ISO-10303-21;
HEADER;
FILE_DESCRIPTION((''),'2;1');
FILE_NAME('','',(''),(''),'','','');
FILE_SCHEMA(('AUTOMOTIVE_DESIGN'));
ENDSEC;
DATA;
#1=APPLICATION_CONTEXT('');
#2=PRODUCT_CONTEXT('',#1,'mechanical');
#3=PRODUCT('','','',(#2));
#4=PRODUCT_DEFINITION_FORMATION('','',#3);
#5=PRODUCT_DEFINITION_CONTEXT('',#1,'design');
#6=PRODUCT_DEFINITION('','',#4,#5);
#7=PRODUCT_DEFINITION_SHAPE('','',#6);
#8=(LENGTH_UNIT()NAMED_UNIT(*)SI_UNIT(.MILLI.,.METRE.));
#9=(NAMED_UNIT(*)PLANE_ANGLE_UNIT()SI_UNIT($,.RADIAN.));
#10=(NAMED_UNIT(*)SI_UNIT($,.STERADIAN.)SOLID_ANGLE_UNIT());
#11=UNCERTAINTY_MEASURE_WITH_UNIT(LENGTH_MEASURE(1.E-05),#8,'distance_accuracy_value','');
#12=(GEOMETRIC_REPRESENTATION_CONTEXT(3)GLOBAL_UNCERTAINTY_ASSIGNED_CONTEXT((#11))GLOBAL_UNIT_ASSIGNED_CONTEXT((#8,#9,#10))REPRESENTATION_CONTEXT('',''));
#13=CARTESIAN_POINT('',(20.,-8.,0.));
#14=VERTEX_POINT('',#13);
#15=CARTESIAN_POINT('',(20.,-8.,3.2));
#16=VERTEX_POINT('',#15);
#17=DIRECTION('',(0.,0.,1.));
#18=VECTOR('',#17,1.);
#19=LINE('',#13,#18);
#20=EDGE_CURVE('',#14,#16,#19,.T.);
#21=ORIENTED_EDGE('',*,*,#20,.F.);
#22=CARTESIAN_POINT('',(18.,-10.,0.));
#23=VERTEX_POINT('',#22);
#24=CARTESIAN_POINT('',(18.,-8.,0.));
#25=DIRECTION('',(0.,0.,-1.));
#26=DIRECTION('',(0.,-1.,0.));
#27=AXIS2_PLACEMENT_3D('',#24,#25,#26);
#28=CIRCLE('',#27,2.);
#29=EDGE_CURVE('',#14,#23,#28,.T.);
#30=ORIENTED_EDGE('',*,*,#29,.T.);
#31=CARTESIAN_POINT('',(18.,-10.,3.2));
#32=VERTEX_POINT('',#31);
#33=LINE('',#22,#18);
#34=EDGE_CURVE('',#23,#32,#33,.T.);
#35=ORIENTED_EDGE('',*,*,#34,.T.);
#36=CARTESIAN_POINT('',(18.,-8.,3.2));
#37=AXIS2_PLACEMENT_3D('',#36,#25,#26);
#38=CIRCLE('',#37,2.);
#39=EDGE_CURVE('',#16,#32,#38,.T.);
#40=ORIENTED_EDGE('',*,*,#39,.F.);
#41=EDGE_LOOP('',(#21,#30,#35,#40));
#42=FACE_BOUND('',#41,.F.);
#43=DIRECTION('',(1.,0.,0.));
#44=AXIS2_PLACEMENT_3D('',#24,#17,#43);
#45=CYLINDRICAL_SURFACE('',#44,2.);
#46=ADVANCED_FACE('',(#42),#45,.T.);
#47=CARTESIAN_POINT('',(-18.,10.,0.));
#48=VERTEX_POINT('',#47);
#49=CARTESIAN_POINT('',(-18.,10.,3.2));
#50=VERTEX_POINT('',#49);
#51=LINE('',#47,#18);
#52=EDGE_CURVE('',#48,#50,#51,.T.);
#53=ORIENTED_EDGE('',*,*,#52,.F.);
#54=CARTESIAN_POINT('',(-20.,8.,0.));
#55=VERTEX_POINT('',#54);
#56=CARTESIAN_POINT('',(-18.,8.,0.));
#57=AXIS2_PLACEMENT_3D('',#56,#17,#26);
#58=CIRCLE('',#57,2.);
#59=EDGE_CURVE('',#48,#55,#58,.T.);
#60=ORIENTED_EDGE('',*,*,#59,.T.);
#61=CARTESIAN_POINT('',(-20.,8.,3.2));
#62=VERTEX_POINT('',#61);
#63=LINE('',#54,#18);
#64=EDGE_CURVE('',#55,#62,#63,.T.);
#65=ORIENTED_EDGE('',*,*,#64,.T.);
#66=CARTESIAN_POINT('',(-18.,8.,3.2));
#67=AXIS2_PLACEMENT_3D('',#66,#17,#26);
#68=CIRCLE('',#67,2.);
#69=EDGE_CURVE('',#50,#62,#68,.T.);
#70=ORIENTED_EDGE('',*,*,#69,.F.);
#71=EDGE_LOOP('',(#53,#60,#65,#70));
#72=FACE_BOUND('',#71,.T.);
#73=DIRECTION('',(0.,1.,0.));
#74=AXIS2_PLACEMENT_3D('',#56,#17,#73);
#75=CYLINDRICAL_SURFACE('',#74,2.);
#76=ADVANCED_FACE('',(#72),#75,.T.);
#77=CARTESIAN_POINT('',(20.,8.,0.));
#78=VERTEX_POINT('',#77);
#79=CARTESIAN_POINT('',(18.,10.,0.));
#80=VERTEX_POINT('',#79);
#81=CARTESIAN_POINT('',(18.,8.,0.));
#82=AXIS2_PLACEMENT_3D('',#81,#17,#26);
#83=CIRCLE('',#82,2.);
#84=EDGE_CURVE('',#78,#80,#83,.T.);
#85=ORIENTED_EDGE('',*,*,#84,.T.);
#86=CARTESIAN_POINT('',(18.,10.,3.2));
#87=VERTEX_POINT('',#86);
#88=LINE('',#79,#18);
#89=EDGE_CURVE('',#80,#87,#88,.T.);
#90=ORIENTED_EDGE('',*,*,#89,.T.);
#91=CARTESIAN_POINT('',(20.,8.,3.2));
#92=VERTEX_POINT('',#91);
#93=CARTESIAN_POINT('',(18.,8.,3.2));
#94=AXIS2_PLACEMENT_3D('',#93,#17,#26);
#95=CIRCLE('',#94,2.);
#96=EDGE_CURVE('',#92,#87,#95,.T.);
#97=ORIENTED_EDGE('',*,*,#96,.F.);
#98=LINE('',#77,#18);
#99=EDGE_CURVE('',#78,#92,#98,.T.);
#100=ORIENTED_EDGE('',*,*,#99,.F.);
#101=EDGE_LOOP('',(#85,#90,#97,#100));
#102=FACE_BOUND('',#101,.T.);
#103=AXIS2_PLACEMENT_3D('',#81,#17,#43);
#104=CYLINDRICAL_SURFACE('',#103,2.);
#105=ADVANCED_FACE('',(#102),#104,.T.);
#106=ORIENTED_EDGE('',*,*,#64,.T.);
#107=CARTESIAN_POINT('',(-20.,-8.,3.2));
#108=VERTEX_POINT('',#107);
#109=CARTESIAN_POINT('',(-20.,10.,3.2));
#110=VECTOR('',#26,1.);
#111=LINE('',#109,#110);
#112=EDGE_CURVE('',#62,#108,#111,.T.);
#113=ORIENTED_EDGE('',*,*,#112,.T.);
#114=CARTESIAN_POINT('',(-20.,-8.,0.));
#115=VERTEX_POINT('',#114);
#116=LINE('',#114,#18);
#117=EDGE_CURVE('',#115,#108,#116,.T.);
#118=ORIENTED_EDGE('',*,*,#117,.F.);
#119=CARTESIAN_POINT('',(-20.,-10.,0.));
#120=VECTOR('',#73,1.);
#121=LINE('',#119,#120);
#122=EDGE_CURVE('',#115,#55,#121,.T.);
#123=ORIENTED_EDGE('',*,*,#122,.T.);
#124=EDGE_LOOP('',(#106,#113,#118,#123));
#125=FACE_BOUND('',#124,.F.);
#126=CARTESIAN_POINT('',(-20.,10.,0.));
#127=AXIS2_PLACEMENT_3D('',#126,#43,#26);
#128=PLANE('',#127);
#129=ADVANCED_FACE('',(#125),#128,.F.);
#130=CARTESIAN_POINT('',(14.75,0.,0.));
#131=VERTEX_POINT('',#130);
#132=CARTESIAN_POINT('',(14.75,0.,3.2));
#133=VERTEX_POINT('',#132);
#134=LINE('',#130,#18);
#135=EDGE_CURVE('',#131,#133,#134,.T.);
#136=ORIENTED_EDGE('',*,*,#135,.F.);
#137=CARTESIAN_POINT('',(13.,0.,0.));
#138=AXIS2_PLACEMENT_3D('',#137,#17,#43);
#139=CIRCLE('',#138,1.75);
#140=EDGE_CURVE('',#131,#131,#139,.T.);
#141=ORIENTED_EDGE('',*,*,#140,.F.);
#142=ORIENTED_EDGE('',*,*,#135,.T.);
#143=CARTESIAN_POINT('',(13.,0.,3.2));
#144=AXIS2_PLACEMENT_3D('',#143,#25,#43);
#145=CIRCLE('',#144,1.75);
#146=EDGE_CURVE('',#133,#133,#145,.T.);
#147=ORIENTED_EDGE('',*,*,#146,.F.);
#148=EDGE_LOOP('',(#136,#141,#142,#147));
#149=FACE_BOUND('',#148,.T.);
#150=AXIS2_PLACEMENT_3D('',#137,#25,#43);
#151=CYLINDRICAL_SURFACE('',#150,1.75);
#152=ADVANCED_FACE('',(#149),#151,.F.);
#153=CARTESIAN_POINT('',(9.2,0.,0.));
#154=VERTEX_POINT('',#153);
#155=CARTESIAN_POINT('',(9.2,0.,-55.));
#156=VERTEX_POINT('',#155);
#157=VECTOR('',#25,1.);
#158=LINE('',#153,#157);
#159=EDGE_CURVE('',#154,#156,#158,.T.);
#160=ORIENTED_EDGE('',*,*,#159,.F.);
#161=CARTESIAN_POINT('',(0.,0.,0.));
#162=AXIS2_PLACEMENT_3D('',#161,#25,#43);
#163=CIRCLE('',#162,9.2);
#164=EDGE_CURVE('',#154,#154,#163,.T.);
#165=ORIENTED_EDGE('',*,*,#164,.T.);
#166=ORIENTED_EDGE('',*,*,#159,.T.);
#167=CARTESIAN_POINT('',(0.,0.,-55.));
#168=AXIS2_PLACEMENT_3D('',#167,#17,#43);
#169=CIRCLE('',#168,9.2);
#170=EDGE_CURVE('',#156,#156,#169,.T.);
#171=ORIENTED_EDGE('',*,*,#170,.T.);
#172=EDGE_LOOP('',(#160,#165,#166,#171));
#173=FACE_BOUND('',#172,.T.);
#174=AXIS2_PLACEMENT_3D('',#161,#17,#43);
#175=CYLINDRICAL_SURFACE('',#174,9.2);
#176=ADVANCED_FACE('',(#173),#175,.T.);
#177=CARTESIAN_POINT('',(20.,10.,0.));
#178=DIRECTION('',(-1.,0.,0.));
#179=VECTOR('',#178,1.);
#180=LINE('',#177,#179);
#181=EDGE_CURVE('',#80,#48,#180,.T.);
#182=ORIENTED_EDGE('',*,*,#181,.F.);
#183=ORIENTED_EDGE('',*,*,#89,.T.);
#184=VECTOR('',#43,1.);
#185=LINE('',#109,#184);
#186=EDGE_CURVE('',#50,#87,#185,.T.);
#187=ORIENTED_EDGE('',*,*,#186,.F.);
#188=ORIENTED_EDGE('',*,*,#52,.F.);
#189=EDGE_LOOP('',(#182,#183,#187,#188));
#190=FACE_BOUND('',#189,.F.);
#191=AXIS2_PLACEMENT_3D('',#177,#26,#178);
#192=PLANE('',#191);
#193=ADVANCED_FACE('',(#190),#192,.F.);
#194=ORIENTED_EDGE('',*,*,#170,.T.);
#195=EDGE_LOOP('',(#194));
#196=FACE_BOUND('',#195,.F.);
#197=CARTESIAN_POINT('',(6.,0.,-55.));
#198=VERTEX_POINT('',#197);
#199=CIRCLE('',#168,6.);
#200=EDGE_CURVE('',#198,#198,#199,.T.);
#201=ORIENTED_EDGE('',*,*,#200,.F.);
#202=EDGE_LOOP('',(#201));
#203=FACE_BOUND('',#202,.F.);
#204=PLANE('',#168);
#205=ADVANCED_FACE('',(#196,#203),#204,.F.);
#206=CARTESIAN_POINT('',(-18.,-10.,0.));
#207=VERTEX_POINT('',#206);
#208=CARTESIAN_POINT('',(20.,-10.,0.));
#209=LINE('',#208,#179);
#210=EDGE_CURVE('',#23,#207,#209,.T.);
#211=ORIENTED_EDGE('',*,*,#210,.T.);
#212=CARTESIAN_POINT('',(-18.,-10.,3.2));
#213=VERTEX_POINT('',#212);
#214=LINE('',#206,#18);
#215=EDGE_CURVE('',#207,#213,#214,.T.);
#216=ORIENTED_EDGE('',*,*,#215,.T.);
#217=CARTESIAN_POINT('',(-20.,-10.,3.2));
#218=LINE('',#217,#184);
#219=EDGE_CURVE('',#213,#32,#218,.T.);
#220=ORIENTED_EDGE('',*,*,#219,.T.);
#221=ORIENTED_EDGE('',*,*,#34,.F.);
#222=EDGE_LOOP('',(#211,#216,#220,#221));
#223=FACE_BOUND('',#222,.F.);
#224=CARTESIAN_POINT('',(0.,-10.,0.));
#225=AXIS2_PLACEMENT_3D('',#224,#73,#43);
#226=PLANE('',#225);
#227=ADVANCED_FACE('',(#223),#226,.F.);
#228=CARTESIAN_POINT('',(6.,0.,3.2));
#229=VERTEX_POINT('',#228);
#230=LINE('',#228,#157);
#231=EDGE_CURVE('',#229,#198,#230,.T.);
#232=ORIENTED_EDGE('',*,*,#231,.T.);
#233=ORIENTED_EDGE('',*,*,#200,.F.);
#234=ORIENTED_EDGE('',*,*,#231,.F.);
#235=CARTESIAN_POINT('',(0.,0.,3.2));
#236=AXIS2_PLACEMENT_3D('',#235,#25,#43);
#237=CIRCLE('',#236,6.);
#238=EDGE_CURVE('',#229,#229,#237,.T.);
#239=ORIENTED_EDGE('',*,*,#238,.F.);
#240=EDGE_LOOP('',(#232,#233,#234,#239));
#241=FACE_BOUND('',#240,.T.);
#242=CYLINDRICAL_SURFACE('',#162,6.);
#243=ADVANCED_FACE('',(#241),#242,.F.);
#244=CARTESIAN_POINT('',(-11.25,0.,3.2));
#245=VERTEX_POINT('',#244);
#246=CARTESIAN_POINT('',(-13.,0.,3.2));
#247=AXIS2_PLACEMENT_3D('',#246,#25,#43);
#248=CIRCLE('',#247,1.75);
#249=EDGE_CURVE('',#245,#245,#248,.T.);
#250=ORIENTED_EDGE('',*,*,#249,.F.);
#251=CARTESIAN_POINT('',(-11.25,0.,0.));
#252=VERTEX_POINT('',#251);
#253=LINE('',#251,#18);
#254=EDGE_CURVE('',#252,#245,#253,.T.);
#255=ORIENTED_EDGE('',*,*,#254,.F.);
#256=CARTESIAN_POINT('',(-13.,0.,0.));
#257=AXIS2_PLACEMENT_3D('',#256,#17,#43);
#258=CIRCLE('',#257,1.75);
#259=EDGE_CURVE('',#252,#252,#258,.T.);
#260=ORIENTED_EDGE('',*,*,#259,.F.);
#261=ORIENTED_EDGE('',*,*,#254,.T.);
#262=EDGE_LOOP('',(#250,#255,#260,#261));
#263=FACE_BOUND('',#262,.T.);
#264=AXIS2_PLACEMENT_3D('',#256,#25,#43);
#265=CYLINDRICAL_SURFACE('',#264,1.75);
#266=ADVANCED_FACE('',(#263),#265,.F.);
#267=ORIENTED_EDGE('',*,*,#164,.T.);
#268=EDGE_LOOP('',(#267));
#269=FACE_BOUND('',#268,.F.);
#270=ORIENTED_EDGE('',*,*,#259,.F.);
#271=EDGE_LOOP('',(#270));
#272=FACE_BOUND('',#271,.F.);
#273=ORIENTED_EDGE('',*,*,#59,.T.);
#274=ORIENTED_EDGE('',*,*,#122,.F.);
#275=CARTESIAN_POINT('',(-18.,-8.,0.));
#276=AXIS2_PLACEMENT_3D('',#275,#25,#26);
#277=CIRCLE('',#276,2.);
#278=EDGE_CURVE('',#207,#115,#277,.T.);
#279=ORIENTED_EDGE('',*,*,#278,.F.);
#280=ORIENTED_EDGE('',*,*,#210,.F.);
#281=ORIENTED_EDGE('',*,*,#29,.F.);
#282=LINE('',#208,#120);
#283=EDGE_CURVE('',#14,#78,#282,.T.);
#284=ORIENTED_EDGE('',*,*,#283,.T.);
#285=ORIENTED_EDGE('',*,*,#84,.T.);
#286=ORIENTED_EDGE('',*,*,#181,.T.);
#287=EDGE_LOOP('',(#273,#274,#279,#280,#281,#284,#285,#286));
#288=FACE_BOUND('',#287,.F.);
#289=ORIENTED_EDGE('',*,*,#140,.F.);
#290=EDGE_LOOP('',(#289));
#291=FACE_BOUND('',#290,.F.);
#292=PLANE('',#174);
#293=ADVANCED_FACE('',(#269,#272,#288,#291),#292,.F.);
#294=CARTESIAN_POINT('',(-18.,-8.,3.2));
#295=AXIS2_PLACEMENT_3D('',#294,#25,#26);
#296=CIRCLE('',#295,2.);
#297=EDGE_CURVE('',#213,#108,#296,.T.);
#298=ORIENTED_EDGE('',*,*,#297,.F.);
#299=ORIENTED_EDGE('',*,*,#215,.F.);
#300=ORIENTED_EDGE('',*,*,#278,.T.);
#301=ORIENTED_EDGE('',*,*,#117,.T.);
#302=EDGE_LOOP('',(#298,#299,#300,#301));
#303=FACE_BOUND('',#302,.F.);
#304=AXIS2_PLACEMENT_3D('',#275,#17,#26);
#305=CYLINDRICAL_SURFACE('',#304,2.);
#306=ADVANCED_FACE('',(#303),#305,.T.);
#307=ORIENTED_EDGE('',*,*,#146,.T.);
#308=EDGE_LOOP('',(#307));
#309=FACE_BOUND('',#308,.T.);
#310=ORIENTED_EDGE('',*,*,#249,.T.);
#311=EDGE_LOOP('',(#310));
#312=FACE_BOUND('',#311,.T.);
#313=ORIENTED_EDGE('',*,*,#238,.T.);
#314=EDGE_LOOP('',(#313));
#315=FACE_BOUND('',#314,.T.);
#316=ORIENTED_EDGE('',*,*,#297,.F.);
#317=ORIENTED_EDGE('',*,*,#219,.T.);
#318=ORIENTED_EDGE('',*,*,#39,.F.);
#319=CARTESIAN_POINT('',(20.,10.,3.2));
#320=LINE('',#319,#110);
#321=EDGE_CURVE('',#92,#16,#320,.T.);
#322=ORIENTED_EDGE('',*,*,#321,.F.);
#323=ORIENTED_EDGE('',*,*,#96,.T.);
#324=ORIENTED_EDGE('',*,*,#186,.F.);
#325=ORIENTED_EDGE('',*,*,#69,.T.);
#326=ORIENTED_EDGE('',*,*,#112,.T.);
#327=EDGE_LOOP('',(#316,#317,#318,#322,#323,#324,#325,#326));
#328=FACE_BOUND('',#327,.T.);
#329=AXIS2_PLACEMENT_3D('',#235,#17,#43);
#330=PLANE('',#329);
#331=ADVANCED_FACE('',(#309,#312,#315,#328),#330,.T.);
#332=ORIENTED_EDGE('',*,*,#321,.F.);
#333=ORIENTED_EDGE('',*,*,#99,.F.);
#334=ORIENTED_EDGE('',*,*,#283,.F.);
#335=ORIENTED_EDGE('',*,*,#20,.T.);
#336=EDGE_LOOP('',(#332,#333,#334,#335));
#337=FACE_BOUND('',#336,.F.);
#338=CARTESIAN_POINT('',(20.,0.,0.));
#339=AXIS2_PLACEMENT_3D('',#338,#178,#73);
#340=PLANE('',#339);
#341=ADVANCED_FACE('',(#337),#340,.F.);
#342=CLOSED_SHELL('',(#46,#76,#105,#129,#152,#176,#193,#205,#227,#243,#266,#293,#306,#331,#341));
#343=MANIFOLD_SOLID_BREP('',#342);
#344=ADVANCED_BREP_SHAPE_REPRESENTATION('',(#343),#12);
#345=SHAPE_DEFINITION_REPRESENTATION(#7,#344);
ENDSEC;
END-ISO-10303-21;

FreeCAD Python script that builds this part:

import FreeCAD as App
import Part
import Sketcher
Q = App.Units.Quantity


def edges_at(feature, points):
    """Names of the edges that pass closest to the given points."""
    edges = feature.Shape.Edges
    near = lambda p: min(range(len(edges)), key=lambda i: edges[i].distToShape(Part.Vertex(*p))[0])
    return sorted({f"Edge{near(p) + 1}" for p in points})

doc = App.newDocument("Part")
body = doc.addObject("PartDesign::Body", "Body")

# Sketch on XY plane
sketch1 = doc.addObject("Sketcher::SketchObject", "Sketch")
body.addObject(sketch1)
sketch1.AttachmentSupport = (doc.XY_Plane, [""])
sketch1.MapMode = "FlatFace"
sketch1.addGeometry([
    Part.LineSegment(App.Vector(20, 10, 0), App.Vector(-20, 10, 0)),  # 0
    Part.LineSegment(App.Vector(-20, 10, 0), App.Vector(-20, -10, 0)),  # 1
    Part.LineSegment(App.Vector(-20, -10, 0), App.Vector(20, -10, 0)),  # 2
    Part.LineSegment(App.Vector(20, -10, 0), App.Vector(20, 10, 0)),  # 3
    Part.Circle(App.Vector(13, 0, 0), App.Vector(0, 0, 1), 1.8),  # 4
    Part.Circle(App.Vector(0, 0, 0), App.Vector(0, 0, 1), 6),  # 5
    Part.Circle(App.Vector(-13, 0, 0), App.Vector(0, 0, 1), 1.8),  # 6
], False)
sketch1.addConstraint([
    Sketcher.Constraint("Coincident", 0, 2, 1, 1),
    Sketcher.Constraint("Coincident", 1, 2, 2, 1),
    Sketcher.Constraint("Coincident", 2, 2, 3, 1),
    Sketcher.Constraint("Coincident", 3, 2, 0, 1),
    Sketcher.Constraint("Horizontal", 0),
    Sketcher.Constraint("Vertical", 1),
    Sketcher.Constraint("Horizontal", 2),
    Sketcher.Constraint("Vertical", 3),
    Sketcher.Constraint("Coincident", 5, 3, -1, 1),
    Sketcher.Constraint("Equal", 4, 6),
    Sketcher.Constraint("Symmetric", 4, 3, 6, 3, -1, 1),
    Sketcher.Constraint("Symmetric", 0, 2, 2, 2, -1, 1),
    Sketcher.Constraint("PointOnObject", 4, 3, -1),
    Sketcher.Constraint("Diameter", 5, Q("12 mm")),
    Sketcher.Constraint("Diameter", 4, Q("3.5 mm")),
    Sketcher.Constraint("DistanceX", 0, 2, 0, 1, Q("40 mm")),
    Sketcher.Constraint("DistanceY", 1, 2, 1, 1, Q("20 mm")),
    Sketcher.Constraint("DistanceX", 0, 2, 6, 3, Q("7 mm")),
])
pad1 = doc.addObject("PartDesign::Pad", "Pad")
body.addObject(pad1)
pad1.Profile = sketch1
pad1.Length = 3.2

# Sketch on XY plane
sketch2 = doc.addObject("Sketcher::SketchObject", "Sketch001")
body.addObject(sketch2)
sketch2.AttachmentSupport = (doc.XY_Plane, [""])
sketch2.MapMode = "FlatFace"
sketch2.addGeometry([
    Part.Circle(App.Vector(0, 0, 0), App.Vector(0, 0, 1), 9),
    Part.Circle(App.Vector(0, 0, 0), App.Vector(0, 0, 1), 6),
], False)
sketch2.addConstraint([
    Sketcher.Constraint("Coincident", 0, 3, -1, 1),
    Sketcher.Constraint("Coincident", 1, 3, -1, 1),
    Sketcher.Constraint("Diameter", 1, Q("12 mm")),
    Sketcher.Constraint("Diameter", 0, Q("18.4 mm")),
])
pad2 = doc.addObject("PartDesign::Pad", "Pad001")
body.addObject(pad2)
pad2.Profile = sketch2
pad2.Length = 55
pad2.Reversed = True
doc.recompute()

fillet = doc.addObject("PartDesign::Fillet", "Fillet")
body.addObject(fillet)
fillet.Base = (pad2, edges_at(pad2, [
    (20, 10, 1.6),
    (20, -10, 1.6),
    (-20, 10, 1.6),
    (-20, -10, 1.6),
]))
fillet.Radius = 2

doc.recompute()
